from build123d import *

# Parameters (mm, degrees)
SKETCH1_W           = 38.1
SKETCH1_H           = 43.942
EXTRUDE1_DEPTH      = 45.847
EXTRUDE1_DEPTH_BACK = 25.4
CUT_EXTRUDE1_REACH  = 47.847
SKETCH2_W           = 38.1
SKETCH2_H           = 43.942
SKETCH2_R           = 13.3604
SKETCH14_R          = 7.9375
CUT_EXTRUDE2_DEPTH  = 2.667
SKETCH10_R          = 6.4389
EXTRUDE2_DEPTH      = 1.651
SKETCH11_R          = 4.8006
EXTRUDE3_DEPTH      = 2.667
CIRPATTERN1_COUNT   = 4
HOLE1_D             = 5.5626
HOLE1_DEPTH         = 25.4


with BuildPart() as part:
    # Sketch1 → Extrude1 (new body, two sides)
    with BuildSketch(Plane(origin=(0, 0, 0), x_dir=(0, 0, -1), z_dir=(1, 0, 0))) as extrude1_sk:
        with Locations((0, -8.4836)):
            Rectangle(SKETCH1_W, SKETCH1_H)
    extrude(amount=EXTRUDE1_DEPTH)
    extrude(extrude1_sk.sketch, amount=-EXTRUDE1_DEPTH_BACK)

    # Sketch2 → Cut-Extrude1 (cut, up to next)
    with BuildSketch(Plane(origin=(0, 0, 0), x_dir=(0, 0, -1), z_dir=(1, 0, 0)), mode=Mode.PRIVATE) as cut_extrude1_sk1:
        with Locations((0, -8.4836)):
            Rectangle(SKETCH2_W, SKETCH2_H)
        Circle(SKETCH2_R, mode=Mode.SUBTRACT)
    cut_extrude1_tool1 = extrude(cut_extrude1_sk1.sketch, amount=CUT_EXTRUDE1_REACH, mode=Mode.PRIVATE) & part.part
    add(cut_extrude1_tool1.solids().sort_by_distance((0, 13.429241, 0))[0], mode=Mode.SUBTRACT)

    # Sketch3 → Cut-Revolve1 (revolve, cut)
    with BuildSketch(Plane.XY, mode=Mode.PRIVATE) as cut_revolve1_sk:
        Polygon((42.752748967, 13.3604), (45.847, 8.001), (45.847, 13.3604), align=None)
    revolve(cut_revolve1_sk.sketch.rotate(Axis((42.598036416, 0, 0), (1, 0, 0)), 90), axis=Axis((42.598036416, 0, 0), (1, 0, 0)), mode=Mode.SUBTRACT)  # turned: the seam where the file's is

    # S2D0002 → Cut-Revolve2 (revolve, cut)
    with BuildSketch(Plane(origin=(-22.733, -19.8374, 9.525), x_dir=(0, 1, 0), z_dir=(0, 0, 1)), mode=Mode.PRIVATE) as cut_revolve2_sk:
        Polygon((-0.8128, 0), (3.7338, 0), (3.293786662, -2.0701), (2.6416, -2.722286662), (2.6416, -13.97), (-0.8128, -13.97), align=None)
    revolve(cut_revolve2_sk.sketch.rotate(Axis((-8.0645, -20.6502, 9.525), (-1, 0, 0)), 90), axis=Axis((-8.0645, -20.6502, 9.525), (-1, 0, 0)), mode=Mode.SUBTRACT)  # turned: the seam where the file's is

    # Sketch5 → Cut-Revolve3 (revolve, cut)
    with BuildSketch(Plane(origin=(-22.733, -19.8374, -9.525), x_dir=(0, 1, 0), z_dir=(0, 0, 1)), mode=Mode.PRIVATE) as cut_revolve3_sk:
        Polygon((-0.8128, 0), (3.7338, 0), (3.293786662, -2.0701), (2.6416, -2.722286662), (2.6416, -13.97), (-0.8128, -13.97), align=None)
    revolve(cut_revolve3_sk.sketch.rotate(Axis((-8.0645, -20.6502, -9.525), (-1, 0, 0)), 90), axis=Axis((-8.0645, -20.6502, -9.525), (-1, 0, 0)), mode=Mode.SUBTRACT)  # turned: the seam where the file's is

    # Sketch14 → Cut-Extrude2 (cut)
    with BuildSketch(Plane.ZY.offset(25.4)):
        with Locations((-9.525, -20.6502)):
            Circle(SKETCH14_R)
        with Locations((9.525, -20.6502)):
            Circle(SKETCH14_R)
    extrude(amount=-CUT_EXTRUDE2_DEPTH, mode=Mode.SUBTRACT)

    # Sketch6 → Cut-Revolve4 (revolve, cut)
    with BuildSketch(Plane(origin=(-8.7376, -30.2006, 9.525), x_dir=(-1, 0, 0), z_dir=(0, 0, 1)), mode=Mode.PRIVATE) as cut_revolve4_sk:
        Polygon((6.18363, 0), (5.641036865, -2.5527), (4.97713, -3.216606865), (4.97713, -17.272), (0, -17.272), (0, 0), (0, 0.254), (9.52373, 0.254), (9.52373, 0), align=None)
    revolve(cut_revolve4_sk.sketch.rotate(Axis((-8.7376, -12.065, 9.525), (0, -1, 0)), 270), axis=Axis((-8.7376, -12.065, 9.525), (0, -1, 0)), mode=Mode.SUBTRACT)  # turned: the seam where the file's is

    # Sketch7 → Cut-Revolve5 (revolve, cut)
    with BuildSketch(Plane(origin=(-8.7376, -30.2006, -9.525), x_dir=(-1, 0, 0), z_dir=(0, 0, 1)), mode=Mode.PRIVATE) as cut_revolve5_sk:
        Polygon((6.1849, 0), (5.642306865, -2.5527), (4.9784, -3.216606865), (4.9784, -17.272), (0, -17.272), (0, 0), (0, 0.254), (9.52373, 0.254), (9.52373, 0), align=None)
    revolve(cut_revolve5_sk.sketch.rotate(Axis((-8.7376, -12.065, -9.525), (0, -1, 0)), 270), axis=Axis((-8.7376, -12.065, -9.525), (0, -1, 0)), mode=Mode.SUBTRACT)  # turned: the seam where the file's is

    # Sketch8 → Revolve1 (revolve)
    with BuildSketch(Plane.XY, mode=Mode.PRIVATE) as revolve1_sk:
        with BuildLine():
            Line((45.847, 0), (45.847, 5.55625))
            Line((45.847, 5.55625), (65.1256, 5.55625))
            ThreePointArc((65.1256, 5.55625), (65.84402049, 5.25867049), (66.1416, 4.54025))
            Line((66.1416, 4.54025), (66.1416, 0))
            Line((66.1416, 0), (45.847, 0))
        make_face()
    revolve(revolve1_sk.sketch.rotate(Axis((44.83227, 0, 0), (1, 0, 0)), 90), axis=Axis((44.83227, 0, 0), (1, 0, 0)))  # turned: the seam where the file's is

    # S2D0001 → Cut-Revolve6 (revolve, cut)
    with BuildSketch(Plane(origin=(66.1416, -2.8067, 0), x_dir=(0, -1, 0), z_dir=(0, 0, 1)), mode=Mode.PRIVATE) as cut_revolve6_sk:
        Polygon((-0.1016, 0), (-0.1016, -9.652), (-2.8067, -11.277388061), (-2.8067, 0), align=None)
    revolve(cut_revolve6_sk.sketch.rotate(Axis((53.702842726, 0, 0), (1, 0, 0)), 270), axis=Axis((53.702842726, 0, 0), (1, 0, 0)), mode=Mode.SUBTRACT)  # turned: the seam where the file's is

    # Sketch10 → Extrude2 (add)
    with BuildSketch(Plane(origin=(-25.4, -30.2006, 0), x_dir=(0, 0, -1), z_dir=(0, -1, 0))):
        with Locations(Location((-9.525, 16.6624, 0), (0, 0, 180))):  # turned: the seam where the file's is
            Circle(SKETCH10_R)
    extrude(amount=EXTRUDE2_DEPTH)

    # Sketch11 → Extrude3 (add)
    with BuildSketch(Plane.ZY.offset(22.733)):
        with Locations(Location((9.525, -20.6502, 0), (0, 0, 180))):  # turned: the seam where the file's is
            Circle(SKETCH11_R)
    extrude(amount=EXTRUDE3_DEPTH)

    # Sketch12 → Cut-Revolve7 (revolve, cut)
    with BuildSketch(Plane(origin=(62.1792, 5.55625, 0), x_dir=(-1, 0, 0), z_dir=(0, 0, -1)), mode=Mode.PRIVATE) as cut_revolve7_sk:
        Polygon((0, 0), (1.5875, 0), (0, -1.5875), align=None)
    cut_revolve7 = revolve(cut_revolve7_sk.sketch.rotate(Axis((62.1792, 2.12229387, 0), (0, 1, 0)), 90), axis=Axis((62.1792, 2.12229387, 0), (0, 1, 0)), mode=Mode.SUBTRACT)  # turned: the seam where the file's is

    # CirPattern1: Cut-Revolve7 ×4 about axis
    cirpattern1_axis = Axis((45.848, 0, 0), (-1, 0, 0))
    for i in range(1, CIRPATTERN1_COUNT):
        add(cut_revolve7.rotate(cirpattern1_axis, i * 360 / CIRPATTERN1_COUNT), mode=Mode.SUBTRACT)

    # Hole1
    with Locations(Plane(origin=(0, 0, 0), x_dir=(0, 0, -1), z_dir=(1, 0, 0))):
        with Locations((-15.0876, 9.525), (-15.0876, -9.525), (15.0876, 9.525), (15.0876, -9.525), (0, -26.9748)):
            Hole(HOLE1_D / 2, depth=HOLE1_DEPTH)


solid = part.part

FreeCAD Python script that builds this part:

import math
import FreeCAD as App
import Part
import Sketcher

V = App.Vector
Q = App.Units.Quantity

doc = App.newDocument("Part")
body = doc.addObject("PartDesign::Body", "Body")

# Sketch on YZ plane
sketch1 = doc.addObject("Sketcher::SketchObject", "Sketch")
body.addObject(sketch1)
sketch1.AttachmentSupport = (doc.YZ_Plane, [""])
sketch1.MapMode = "FlatFace"
sketch1.addGeometry([
    Part.LineSegment(V(13, 19, 0), V(-30, 19, 0)),
    Part.LineSegment(V(-30, 19, 0), V(-30, -19, 0)),
    Part.LineSegment(V(-30, -19, 0), V(13, -19, 0)),
    Part.LineSegment(V(13, -19, 0), V(13, 19, 0)),
], False)
sketch1.addConstraint([
    Sketcher.Constraint("Coincident", 0, 2, 1, 1),
    Sketcher.Constraint("Coincident", 1, 2, 2, 1),
    Sketcher.Constraint("Coincident", 2, 2, 3, 1),
    Sketcher.Constraint("Coincident", 3, 2, 0, 1),
    Sketcher.Constraint("Horizontal", 0),
    Sketcher.Constraint("Vertical", 1),
    Sketcher.Constraint("Horizontal", 2),
    Sketcher.Constraint("Vertical", 3),
    Sketcher.Constraint("DistanceY", 1, 2, 1, 1, Q("1.5 in")),
    Sketcher.Constraint("DistanceX", 0, 2, 0, 1, Q("1.73 in")),
    Sketcher.Constraint("DistanceY", -1, 1, 0, 2, Q("0.75 in")),
    Sketcher.Constraint("DistanceX", 0, 2, -1, 1, Q("1.199 in")),
])
pad1 = doc.addObject("PartDesign::Pad", "Pad")
body.addObject(pad1)
pad1.Profile = sketch1
pad1.Type = "TwoLengths"
pad1.Length = Q("1.805 in")
pad1.Length2 = Q("1 in")

# Sketch on YZ plane
sketch2 = doc.addObject("Sketcher::SketchObject", "Sketch001")
body.addObject(sketch2)
sketch2.AttachmentSupport = (doc.YZ_Plane, [""])
sketch2.MapMode = "FlatFace"
sketch2.addGeometry([
    Part.LineSegment(V(13, 19, 0), V(-30, 19, 0)),  # 0
    Part.LineSegment(V(-30, 19, 0), V(-30, -19, 0)),  # 1
    Part.LineSegment(V(-30, -19, 0), V(13, -19, 0)),  # 2
    Part.LineSegment(V(13, -19, 0), V(13, 19, 0)),  # 3
    Part.Circle(V(0, 0, 0), V(0, 0, 1), 13),  # 4
], False)
sketch2.addConstraint([
    Sketcher.Constraint("Coincident", 0, 2, 1, 1),
    Sketcher.Constraint("Coincident", 1, 2, 2, 1),
    Sketcher.Constraint("Coincident", 2, 2, 3, 1),
    Sketcher.Constraint("Coincident", 3, 2, 0, 1),
    Sketcher.Constraint("Horizontal", 0),
    Sketcher.Constraint("Vertical", 1),
    Sketcher.Constraint("Horizontal", 2),
    Sketcher.Constraint("Vertical", 3),
    Sketcher.Constraint("Coincident", 4, 3, -1, 1),
    Sketcher.Constraint("Diameter", 4, Q("1.052 in")),
    Sketcher.Constraint("DistanceY", 1, 2, 1, 1, Q("1.5 in")),
    Sketcher.Constraint("DistanceX", 0, 2, 0, 1, Q("1.73 in")),
    Sketcher.Constraint("DistanceY", -1, 1, 0, 2, Q("0.75 in")),
    Sketcher.Constraint("DistanceX", 0, 2, -1, 1, Q("1.199 in")),
])
pocket1 = doc.addObject("PartDesign::Pocket", "Pocket")
body.addObject(pocket1)
pocket1.Profile = sketch2
pocket1.Type = "UpToFirst"
pocket1.Reversed = True

# Sketch on XY plane
sketch3 = doc.addObject("Sketcher::SketchObject", "Sketch002")
body.addObject(sketch3)
sketch3.AttachmentSupport = (doc.XY_Plane, [""])
sketch3.MapMode = "FlatFace"
sketch3.addGeometry([
    Part.LineSegment(V(42.8, 13.4, 0), V(45.8, 8, 0)),
    Part.LineSegment(V(45.8, 8, 0), V(45.8, 13.4, 0)),
    Part.LineSegment(V(45.8, 13.4, 0), V(42.8, 13.4, 0)),
], False)
sketch3.addConstraint([
    Sketcher.Constraint("Coincident", 0, 2, 1, 1),
    Sketcher.Constraint("Coincident", 1, 2, 2, 1),
    Sketcher.Constraint("Coincident", 2, 2, 0, 1),
    Sketcher.Constraint("Vertical", 1),
    Sketcher.Constraint("Horizontal", 2),
    Sketcher.Constraint("Angle", 0, Q("-60 deg")),
    Sketcher.Constraint("DistanceY", 1, 1, 1, 2, Q("0.211 in")),
    Sketcher.Constraint("DistanceX", -1, 1, 0, 2, Q("1.805 in")),
    Sketcher.Constraint("DistanceY", -1, 1, 0, 2, Q("0.315 in")),
])
groove = doc.addObject("PartDesign::Groove", "Groove")
body.addObject(groove)
groove.Profile = sketch3
groove.ReferenceAxis = (sketch3, ["H_Axis"])
groove.Angle = 360

# Sketch on XY plane
sketch4 = doc.addObject("Sketcher::SketchObject", "Sketch003")
body.addObject(sketch4)
sketch4.AttachmentSupport = (doc.XY_Plane, [""])
sketch4.MapMode = "FlatFace"
sketch4.AttachmentOffset = App.Placement(V(0, 0, 0.375 * 25.4), App.Rotation())
sketch4.addGeometry([
    Part.LineSegment(V(-22.7, -16.1, 0), V(-22.7, -20.7, 0)),  # 0
    Part.LineSegment(V(-22.7, -20.7, 0), V(-8.8, -20.7, 0)),  # 1
    Part.LineSegment(V(-8.8, -20.7, 0), V(-8.8, -17.2, 0)),  # 2
    Part.LineSegment(V(-8.8, -17.2, 0), V(-20, -17.2, 0)),  # 3
    Part.LineSegment(V(-20, -17.2, 0), V(-20.7, -16.5, 0)),  # 4
    Part.LineSegment(V(-20.7, -16.5, 0), V(-22.7, -16.1, 0)),  # 5
], False)
sketch4.addGeometry(Part.LineSegment(V(-8.8, -20.7, 0), V(-22.7, -20.7, 0)), True)  # axis
sketch4.addConstraint([
    Sketcher.Constraint("Coincident", 0, 2, 1, 1),
    Sketcher.Constraint("Coincident", 1, 2, 2, 1),
    Sketcher.Constraint("Coincident", 2, 2, 3, 1),
    Sketcher.Constraint("Coincident", 3, 2, 4, 1),
    Sketcher.Constraint("Coincident", 4, 2, 5, 1),
    Sketcher.Constraint("Coincident", 5, 2, 0, 1),
    Sketcher.Constraint("Vertical", 0),
    Sketcher.Constraint("Horizontal", 1),
    Sketcher.Constraint("Vertical", 2),
    Sketcher.Constraint("Horizontal", 3),
    Sketcher.Constraint("Horizontal", 6),
    Sketcher.Constraint("Coincident", 6, 1, 1, 2),
    Sketcher.Constraint("Vertical", 5, 2, 6, 2),
    Sketcher.Constraint("Angle", 4, Q("135 deg")),
    Sketcher.Constraint("Angle", 5, Q("168 deg")),
    Sketcher.Constraint("DistanceX", 1, 1, 1, 2, Q("0.55 in")),
    Sketcher.Constraint("DistanceY", 0, 2, 0, 1, Q("0.179 in")),
    Sketcher.Constraint("DistanceY", 2, 1, 2, 2, Q("0.136 in")),
    Sketcher.Constraint("DistanceX", 0, 2, -1, 1, Q("0.895 in")),
    Sketcher.Constraint("DistanceY", 0, 2, -1, 1, Q("0.813 in")),
    Sketcher.Constraint("DistanceX", 4, 2, -1, 1, Q("0.8135 in")),
])
groove2 = doc.addObject("PartDesign::Groove", "Groove001")
body.addObject(groove2)
groove2.Profile = sketch4
groove2.ReferenceAxis = (sketch4, ["Axis0"])
groove2.Angle = 360

# Sketch on XY plane
sketch5 = doc.addObject("Sketcher::SketchObject", "Sketch004")
body.addObject(sketch5)
sketch5.AttachmentSupport = (doc.XY_Plane, [""])
sketch5.MapMode = "FlatFace"
sketch5.AttachmentOffset = App.Placement(V(0, 0, -0.375 * 25.4), App.Rotation())
sketch5.addGeometry([
    Part.LineSegment(V(-22.7, -16.1, 0), V(-22.7, -20.7, 0)),  # 0
    Part.LineSegment(V(-22.7, -20.7, 0), V(-8.8, -20.7, 0)),  # 1
    Part.LineSegment(V(-8.8, -20.7, 0), V(-8.8, -17.2, 0)),  # 2
    Part.LineSegment(V(-8.8, -17.2, 0), V(-20, -17.2, 0)),  # 3
    Part.LineSegment(V(-20, -17.2, 0), V(-20.7, -16.5, 0)),  # 4
    Part.LineSegment(V(-20.7, -16.5, 0), V(-22.7, -16.1, 0)),  # 5
], False)
sketch5.addGeometry(Part.LineSegment(V(-8.8, -20.7, 0), V(-22.7, -20.7, 0)), True)  # axis
sketch5.addConstraint([
    Sketcher.Constraint("Coincident", 0, 2, 1, 1),
    Sketcher.Constraint("Coincident", 1, 2, 2, 1),
    Sketcher.Constraint("Coincident", 2, 2, 3, 1),
    Sketcher.Constraint("Coincident", 3, 2, 4, 1),
    Sketcher.Constraint("Coincident", 4, 2, 5, 1),
    Sketcher.Constraint("Coincident", 5, 2, 0, 1),
    Sketcher.Constraint("Vertical", 0),
    Sketcher.Constraint("Horizontal", 1),
    Sketcher.Constraint("Vertical", 2),
    Sketcher.Constraint("Horizontal", 3),
    Sketcher.Constraint("Horizontal", 6),
    Sketcher.Constraint("Coincident", 6, 1, 1, 2),
    Sketcher.Constraint("Vertical", 5, 2, 6, 2),
    Sketcher.Constraint("Angle", 4, Q("135 deg")),
    Sketcher.Constraint("Angle", 5, Q("168 deg")),
    Sketcher.Constraint("DistanceX", 1, 1, 1, 2, Q("0.55 in")),
    Sketcher.Constraint("DistanceY", 0, 2, 0, 1, Q("0.179 in")),
    Sketcher.Constraint("DistanceY", 2, 1, 2, 2, Q("0.136 in")),
    Sketcher.Constraint("DistanceX", 0, 2, -1, 1, Q("0.895 in")),
    Sketcher.Constraint("DistanceY", 0, 2, -1, 1, Q("0.813 in")),
    Sketcher.Constraint("DistanceX", 4, 2, -1, 1, Q("0.8135 in")),
])
groove3 = doc.addObject("PartDesign::Groove", "Groove002")
body.addObject(groove3)
groove3.Profile = sketch5
groove3.ReferenceAxis = (sketch5, ["Axis0"])
groove3.Angle = 360

# Sketch on YZ plane
sketch6 = doc.addObject("Sketcher::SketchObject", "Sketch005")
body.addObject(sketch6)
sketch6.AttachmentSupport = (doc.YZ_Plane, [""])
sketch6.MapMode = "FlatFace"
sketch6.AttachmentOffset = App.Placement(V(0, 0, -1 * 25.4), App.Rotation())
sketch6.addGeometry([
    Part.Circle(V(-21, -10, 0), V(0, 0, 1), 8),
    Part.Circle(V(-21, 10, 0), V(0, 0, 1), 8),
], False)
sketch6.addConstraint([
    Sketcher.Constraint("Equal", 0, 1),
    Sketcher.Constraint("Symmetric", 0, 3, 1, 3, -1),
    Sketcher.Constraint("Diameter", 0, Q("0.625 in")),
    Sketcher.Constraint("DistanceY", 0, 3, 1, 3, Q("0.75 in")),
    Sketcher.Constraint("DistanceX", 0, 3, -1, 1, Q("0.813 in")),
])
pocket2 = doc.addObject("PartDesign::Pocket", "Pocket001")
body.addObject(pocket2)
pocket2.Profile = sketch6
pocket2.Length = Q("0.105 in")
pocket2.Reversed = True

# Sketch on XY plane
sketch7 = doc.addObject("Sketcher::SketchObject", "Sketch006")
body.addObject(sketch7)
sketch7.AttachmentSupport = (doc.XY_Plane, [""])
sketch7.MapMode = "FlatFace"
sketch7.AttachmentOffset = App.Placement(V(0, 0, 0.375 * 25.4), App.Rotation())
sketch7.addGeometry([
    Part.LineSegment(V(-14.38, -27.65, 0), V(-14.92, -30.2, 0)),  # 0
    Part.LineSegment(V(-14.92, -30.2, 0), V(-18.26, -30.2, 0)),  # 1
    Part.LineSegment(V(-18.26, -30.2, 0), V(-18.26, -30.45, 0)),  # 2
    Part.LineSegment(V(-18.26, -30.45, 0), V(-8.74, -30.45, 0)),  # 3
    Part.LineSegment(V(-8.74, -30.45, 0), V(-8.74, -12.93, 0)),  # 4
    Part.LineSegment(V(-8.74, -12.93, 0), V(-13.71, -12.93, 0)),  # 5
    Part.LineSegment(V(-13.71, -12.93, 0), V(-13.71, -26.98, 0)),  # 6
    Part.LineSegment(V(-13.71, -26.98, 0), V(-14.38, -27.65, 0)),  # 7
], False)
sketch7.addGeometry(Part.LineSegment(V(-8.74, -12.93, 0), V(-8.74, -30.45, 0)), True)  # axis
sketch7.addConstraint([
    Sketcher.Constraint("Coincident", 0, 2, 1, 1),
    Sketcher.Constraint("Coincident", 1, 2, 2, 1),
    Sketcher.Constraint("Coincident", 2, 2, 3, 1),
    Sketcher.Constraint("Coincident", 3, 2, 4, 1),
    Sketcher.Constraint("Coincident", 4, 2, 5, 1),
    Sketcher.Constraint("Coincident", 5, 2, 6, 1),
    Sketcher.Constraint("Coincident", 6, 2, 7, 1),
    Sketcher.Constraint("Coincident", 7, 2, 0, 1),
    Sketcher.Constraint("Horizontal", 1),
    Sketcher.Constraint("Vertical", 2),
    Sketcher.Constraint("Horizontal", 3),
    Sketcher.Constraint("Vertical", 4),
    Sketcher.Constraint("Horizontal", 5),
    Sketcher.Constraint("Vertical", 6),
    Sketcher.Constraint("Vertical", 8),
    Sketcher.Constraint("Coincident", 8, 1, 4, 2),
    Sketcher.Constraint("Horizontal", 2, 2, 8, 2),
    Sketcher.Constraint("Angle", 0, Q("-102 deg")),
    Sketcher.Constraint("Angle", 7, Q("-135 deg")),
    Sketcher.Constraint("DistanceY", 2, 2, 2, 1, Q("0.01 in")),
    Sketcher.Constraint("DistanceY", 4, 1, 4, 2, Q("0.69 in")),
    Sketcher.Constraint("DistanceX", 1, 2, 1, 1, Q("0.1315 in")),
    Sketcher.Constraint("DistanceY", 0, 2, -1, 1, Q("1.189 in")),
    Sketcher.Constraint("DistanceX", 3, 2, -1, 1, Q("0.344 in")),
    Sketcher.Constraint("DistanceX", 1, 2, 5, 2, Q("0.179 in")),
    Sketcher.Constraint("DistanceY", 7, 2, -1, 1, Q("1.0885 in")),
    Sketcher.Constraint("DistanceX", 3, 1, 3, 2, 9.52373),
])
groove4 = doc.addObject("PartDesign::Groove", "Groove003")
body.addObject(groove4)
groove4.Profile = sketch7
groove4.ReferenceAxis = (sketch7, ["Axis0"])
groove4.Angle = 360

# Sketch on XY plane
sketch8 = doc.addObject("Sketcher::SketchObject", "Sketch007")
body.addObject(sketch8)
sketch8.AttachmentSupport = (doc.XY_Plane, [""])
sketch8.MapMode = "FlatFace"
sketch8.AttachmentOffset = App.Placement(V(0, 0, -0.375 * 25.4), App.Rotation())
sketch8.addGeometry([
    Part.LineSegment(V(-14.38, -27.65, 0), V(-14.92, -30.2, 0)),  # 0
    Part.LineSegment(V(-14.92, -30.2, 0), V(-18.26, -30.2, 0)),  # 1
    Part.LineSegment(V(-18.26, -30.2, 0), V(-18.26, -30.45, 0)),  # 2
    Part.LineSegment(V(-18.26, -30.45, 0), V(-8.74, -30.45, 0)),  # 3
    Part.LineSegment(V(-8.74, -30.45, 0), V(-8.74, -12.93, 0)),  # 4
    Part.LineSegment(V(-8.74, -12.93, 0), V(-13.72, -12.93, 0)),  # 5
    Part.LineSegment(V(-13.72, -12.93, 0), V(-13.72, -26.98, 0)),  # 6
    Part.LineSegment(V(-13.72, -26.98, 0), V(-14.38, -27.65, 0)),  # 7
], False)
sketch8.addGeometry(Part.LineSegment(V(-8.74, -12.93, 0), V(-8.74, -30.45, 0)), True)  # axis
sketch8.addConstraint([
    Sketcher.Constraint("Coincident", 0, 2, 1, 1),
    Sketcher.Constraint("Coincident", 1, 2, 2, 1),
    Sketcher.Constraint("Coincident", 2, 2, 3, 1),
    Sketcher.Constraint("Coincident", 3, 2, 4, 1),
    Sketcher.Constraint("Coincident", 4, 2, 5, 1),
    Sketcher.Constraint("Coincident", 5, 2, 6, 1),
    Sketcher.Constraint("Coincident", 6, 2, 7, 1),
    Sketcher.Constraint("Coincident", 7, 2, 0, 1),
    Sketcher.Constraint("Horizontal", 1),
    Sketcher.Constraint("Vertical", 2),
    Sketcher.Constraint("Horizontal", 3),
    Sketcher.Constraint("Vertical", 4),
    Sketcher.Constraint("Horizontal", 5),
    Sketcher.Constraint("Vertical", 6),
    Sketcher.Constraint("Vertical", 8),
    Sketcher.Constraint("Coincident", 8, 1, 4, 2),
    Sketcher.Constraint("Horizontal", 2, 2, 8, 2),
    Sketcher.Constraint("Angle", 0, Q("-102 deg")),
    Sketcher.Constraint("Angle", 7, Q("-135 deg")),
    Sketcher.Constraint("DistanceY", 2, 2, 2, 1, Q("0.01 in")),
    Sketcher.Constraint("DistanceY", 4, 1, 4, 2, Q("0.69 in")),
    Sketcher.Constraint("DistanceX", 5, 2, 5, 1, Q("0.196 in")),
    Sketcher.Constraint("DistanceX", 5, 2, -1, 1, Q("0.54 in")),
    Sketcher.Constraint("DistanceY", 0, 2, -1, 1, Q("1.189 in")),
    Sketcher.Constraint("DistanceX", 0, 2, -1, 1, Q("0.5875 in")),
    Sketcher.Constraint("DistanceY", 7, 2, -1, 1, Q("1.0885 in")),
    Sketcher.Constraint("DistanceX", 1, 2, 1, 1, 3.33883),
])
groove5 = doc.addObject("PartDesign::Groove", "Groove004")
body.addObject(groove5)
groove5.Profile = sketch8
groove5.ReferenceAxis = (sketch8, ["Axis0"])
groove5.Angle = 360

# Sketch on XY plane
sketch9 = doc.addObject("Sketcher::SketchObject", "Sketch008")
body.addObject(sketch9)
sketch9.AttachmentSupport = (doc.XY_Plane, [""])
sketch9.MapMode = "FlatFace"
sketch9.addGeometry([
    Part.LineSegment(V(45.8, 5.6, 0), V(45.8, 0, 0)),  # 0
    Part.LineSegment(V(45.8, 0, 0), V(66.1, 0, 0)),  # 1
    Part.LineSegment(V(66.1, 0, 0), V(66.1, 4.5, 0)),  # 2
    Part.ArcOfCircle(Part.Circle(V(65.1, 4.5, 0), V(0, 0, 1), 1), math.radians(0), math.radians(90)),  # 3
    Part.LineSegment(V(65.1, 5.6, 0), V(45.8, 5.6, 0)),  # 4
], False)
sketch9.addConstraint([
    Sketcher.Constraint("Coincident", 0, 2, 1, 1),
    Sketcher.Constraint("Coincident", 1, 2, 2, 1),
    Sketcher.Constraint("Tangent", 2, 2, 3, 1),
    Sketcher.Constraint("Tangent", 3, 2, 4, 1),
    Sketcher.Constraint("Coincident", 4, 2, 0, 1),
    Sketcher.Constraint("Vertical", 0),
    Sketcher.Constraint("Horizontal", 1),
    Sketcher.Constraint("Vertical", 2),
    Sketcher.Constraint("Horizontal", 4),
    Sketcher.Constraint("PointOnObject", 0, 2, -1),
    Sketcher.Constraint("Radius", 3, Q("0.04 in")),
    Sketcher.Constraint("DistanceX", 1, 1, 1, 2, Q("0.799 in")),
    Sketcher.Constraint("DistanceY", 0, 2, 0, 1, Q("0.21875 in")),
    Sketcher.Constraint("DistanceX", -1, 1, 3, 3, Q("2.564 in")),
])
revolution = doc.addObject("PartDesign::Revolution", "Revolution")
body.addObject(revolution)
revolution.Profile = sketch9
revolution.ReferenceAxis = (sketch9, ["H_Axis"])
revolution.Angle = 360

# Sketch on XY plane
sketch10 = doc.addObject("Sketcher::SketchObject", "Sketch009")
body.addObject(sketch10)
sketch10.AttachmentSupport = (doc.XY_Plane, [""])
sketch10.MapMode = "FlatFace"
sketch10.addGeometry([
    Part.LineSegment(V(56.5, -2.7, 0), V(66.1, -2.7, 0)),
    Part.LineSegment(V(66.1, -2.7, 0), V(66.1, 0, 0)),
    Part.LineSegment(V(66.1, 0, 0), V(54.9, 0, 0)),
    Part.LineSegment(V(54.9, 0, 0), V(56.5, -2.7, 0)),
], False)
sketch10.addConstraint([
    Sketcher.Constraint("Coincident", 0, 2, 1, 1),
    Sketcher.Constraint("Coincident", 1, 2, 2, 1),
    Sketcher.Constraint("Coincident", 2, 2, 3, 1),
    Sketcher.Constraint("Coincident", 3, 2, 0, 1),
    Sketcher.Constraint("Horizontal", 0),
    Sketcher.Constraint("Vertical", 1),
    Sketcher.Constraint("Horizontal", 2),
    Sketcher.Constraint("PointOnObject", 1, 2, -1),
    Sketcher.Constraint("Angle", 3, Q("-59 deg")),
    Sketcher.Constraint("DistanceX", 0, 1, 0, 2, Q("0.38 in")),
    Sketcher.Constraint("DistanceY", 1, 1, 1, 2, Q("0.1065 in")),
    Sketcher.Constraint("DistanceX", -1, 1, 0, 2, Q("2.604 in")),
])
groove6 = doc.addObject("PartDesign::Groove", "Groove005")
body.addObject(groove6)
groove6.Profile = sketch10
groove6.ReferenceAxis = (sketch10, ["H_Axis"])
groove6.Angle = 360

# Sketch on XZ plane
sketch11 = doc.addObject("Sketcher::SketchObject", "Sketch010")
body.addObject(sketch11)
sketch11.AttachmentSupport = (doc.XZ_Plane, [""])
sketch11.MapMode = "FlatFace"
sketch11.AttachmentOffset = App.Placement(V(0, 0, 1.189 * 25.4), App.Rotation())
sketch11.addGeometry(Part.Circle(V(-9, 10, 0), V(0, 0, 1), 6), False)
sketch11.addConstraint([
    Sketcher.Constraint("Diameter", 0, Q("0.507 in")),
    Sketcher.Constraint("DistanceX", 0, 3, -1, 1, Q("0.344 in")),
    Sketcher.Constraint("DistanceY", -1, 1, 0, 3, Q("0.375 in")),
])
pad2 = doc.addObject("PartDesign::Pad", "Pad001")
body.addObject(pad2)
pad2.Profile = sketch11
pad2.Length = Q("0.065 in")

# Sketch on YZ plane
sketch12 = doc.addObject("Sketcher::SketchObject", "Sketch011")
body.addObject(sketch12)
sketch12.AttachmentSupport = (doc.YZ_Plane, [""])
sketch12.MapMode = "FlatFace"
sketch12.AttachmentOffset = App.Placement(V(0, 0, -0.895 * 25.4), App.Rotation())
sketch12.addGeometry(Part.Circle(V(-20.7, 9.5, 0), V(0, 0, 1), 4.8), False)
sketch12.addConstraint([
    Sketcher.Constraint("Diameter", 0, Q("0.378 in")),
    Sketcher.Constraint("DistanceX", 0, 3, -1, 1, Q("0.813 in")),
    Sketcher.Constraint("DistanceY", -1, 1, 0, 3, Q("0.375 in")),
])
pad3 = doc.addObject("PartDesign::Pad", "Pad002")
body.addObject(pad3)
pad3.Profile = sketch12
pad3.Length = Q("0.105 in")
pad3.Reversed = True

# Sketch on XY plane
sketch13 = doc.addObject("Sketcher::SketchObject", "Sketch012")
body.addObject(sketch13)
sketch13.AttachmentSupport = (doc.XY_Plane, [""])
sketch13.MapMode = "FlatFace"
sketch13.addGeometry([
    Part.LineSegment(V(60.6, 5.6, 0), V(62.2, 5.6, 0)),
    Part.LineSegment(V(62.2, 5.6, 0), V(62.2, 4, 0)),
    Part.LineSegment(V(62.2, 4, 0), V(60.6, 5.6, 0)),
], False)
sketch13.addGeometry(Part.LineSegment(V(62.2, 4, 0), V(62.2, 5.6, 0)), True)  # axis
sketch13.addConstraint([
    Sketcher.Constraint("Coincident", 0, 2, 1, 1),
    Sketcher.Constraint("Coincident", 1, 2, 2, 1),
    Sketcher.Constraint("Coincident", 2, 2, 0, 1),
    Sketcher.Constraint("Horizontal", 0),
    Sketcher.Constraint("Vertical", 1),
    Sketcher.Constraint("Vertical", 3),
    Sketcher.Constraint("Coincident", 3, 1, 1, 2),
    Sketcher.Constraint("Horizontal", 2, 2, 3, 2),
    Sketcher.Constraint("Equal", 0, 1),
    Sketcher.Constraint("DistanceX", 0, 1, 0, 2, Q("0.0625 in")),
    Sketcher.Constraint("DistanceX", -1, 1, 0, 2, Q("2.448 in")),
    Sketcher.Constraint("DistanceY", -1, 1, 0, 2, Q("0.21875 in")),
])
groove7 = doc.addObject("PartDesign::Groove", "Groove006")
body.addObject(groove7)
groove7.Profile = sketch13
groove7.ReferenceAxis = (sketch13, ["Axis0"])
groove7.Angle = 360
doc.recompute()

polarpattern = doc.addObject("PartDesign::PolarPattern", "PolarPattern")
body.addObject(polarpattern)
polarpattern.Originals = [groove7]
polarpattern.Axis = (doc.X_Axis, [""])
polarpattern.Angle = 360
polarpattern.Occurrences = 4
body.Tip = polarpattern

# Sketch on YZ plane
sketch14 = doc.addObject("Sketcher::SketchObject", "Sketch013")
body.addObject(sketch14)
sketch14.AttachmentSupport = (doc.YZ_Plane, [""])
sketch14.MapMode = "FlatFace"
sketch14.addGeometry([
    Part.Circle(V(9.5, 15.1, 0), V(0, 0, 1), 2.8),  # 0
    Part.Circle(V(-9.5, 15.1, 0), V(0, 0, 1), 2.8),  # 1
    Part.Circle(V(9.5, -15.1, 0), V(0, 0, 1), 2.8),  # 2
    Part.Circle(V(-9.5, -15.1, 0), V(0, 0, 1), 2.8),  # 3
    Part.Circle(V(-27, 0, 0), V(0, 0, 1), 2.8),  # 4
], False)
sketch14.addConstraint([
    Sketcher.Constraint("Equal", 0, 1),
    Sketcher.Constraint("Equal", 1, 2),
    Sketcher.Constraint("Equal", 2, 3),
    Sketcher.Constraint("Equal", 3, 4),
    Sketcher.Constraint("Symmetric", 1, 3, 2, 3, -1, 1),
    Sketcher.Constraint("Symmetric", 0, 3, 3, 3, -1, 1),
    Sketcher.Constraint("Symmetric", 0, 3, 1, 3, -2),
    Sketcher.Constraint("PointOnObject", 4, 3, -1),
    Sketcher.Constraint("Diameter", 0, Q("0.219 in")),
    Sketcher.Constraint("DistanceX", 1, 3, 0, 3, Q("0.75 in")),
    Sketcher.Constraint("DistanceY", -1, 1, 0, 3, Q("0.594 in")),
    Sketcher.Constraint("DistanceX", 4, 3, -1, 1, Q("1.062 in")),
])
doc.recompute()
hole = doc.addObject("PartDesign::Hole", "Hole")
body.addObject(hole)
hole.Profile = sketch14
hole.ThreadType = "None"
hole.Diameter = Q("0.219 in")
hole.DepthType = "Dimension"
hole.Depth = Q("1 in")
hole.DrillPoint = "Flat"

doc.recompute()
